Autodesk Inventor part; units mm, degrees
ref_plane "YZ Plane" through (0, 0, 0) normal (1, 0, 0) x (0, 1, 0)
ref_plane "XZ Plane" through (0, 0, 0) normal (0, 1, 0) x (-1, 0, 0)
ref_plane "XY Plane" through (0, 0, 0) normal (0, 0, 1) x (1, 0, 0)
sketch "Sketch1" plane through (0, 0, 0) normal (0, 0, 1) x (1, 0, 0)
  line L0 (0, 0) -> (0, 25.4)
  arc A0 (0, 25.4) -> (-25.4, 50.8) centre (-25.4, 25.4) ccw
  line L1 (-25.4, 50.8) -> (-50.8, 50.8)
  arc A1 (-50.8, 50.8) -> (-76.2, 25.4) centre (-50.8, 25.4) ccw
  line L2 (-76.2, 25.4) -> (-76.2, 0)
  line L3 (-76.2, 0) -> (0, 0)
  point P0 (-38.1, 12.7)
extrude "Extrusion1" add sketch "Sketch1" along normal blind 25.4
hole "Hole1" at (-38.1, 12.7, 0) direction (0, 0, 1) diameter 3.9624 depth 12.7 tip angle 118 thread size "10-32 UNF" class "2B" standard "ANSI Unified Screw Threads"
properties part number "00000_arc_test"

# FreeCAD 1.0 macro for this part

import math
import FreeCAD as App
import Part
import Sketcher
from FreeCAD import Vector
Q = App.Units.Quantity

doc = App.newDocument("Part")
body = doc.addObject("PartDesign::Body", "Body")

# Sketch on XY plane
sketch1 = body.newObject("Sketcher::SketchObject", "Sketch")
sketch1.AttachmentSupport = (doc.getObject("XY_Plane"), [""])
sketch1.MapMode = "FlatFace"
sketch1.addGeometry([
    Part.LineSegment(Vector(-76, 0, 0), Vector(0, 0, 0)),  # 0
    Part.LineSegment(Vector(0, 0, 0), Vector(0, 25, 0)),  # 1
    Part.ArcOfCircle(Part.Circle(Vector(-25, 25, 0), Vector(0, 0, 1), 25), math.radians(0), math.radians(90)),  # 2
    Part.LineSegment(Vector(-25, 51, 0), Vector(-51, 51, 0)),  # 3
    Part.ArcOfCircle(Part.Circle(Vector(-51, 25, 0), Vector(0, 0, 1), 25), math.radians(90), math.radians(180)),  # 4
    Part.LineSegment(Vector(-76, 25, 0), Vector(-76, 0, 0)),  # 5
], False)
sketch1.addConstraint([
    Sketcher.Constraint("Coincident", 0, 2, 1, 1),
    Sketcher.Constraint("Tangent", 1, 2, 2, 1),
    Sketcher.Constraint("Tangent", 2, 2, 3, 1),
    Sketcher.Constraint("Tangent", 3, 2, 4, 1),
    Sketcher.Constraint("Tangent", 4, 2, 5, 1),
    Sketcher.Constraint("Coincident", 5, 2, 0, 1),
    Sketcher.Constraint("Horizontal", 0),
    Sketcher.Constraint("Vertical", 1),
    Sketcher.Constraint("Horizontal", 3),
    Sketcher.Constraint("Vertical", 5),
    Sketcher.Constraint("Coincident", 0, 2, -1, 1),
    Sketcher.Constraint("Equal", 2, 4),
    Sketcher.Constraint("Equal", 3, 1),
    Sketcher.Constraint("Radius", 2, Q("1 in")),
    Sketcher.Constraint("DistanceX", 0, 1, 0, 2, Q("3 in")),
])
pad1 = body.newObject("PartDesign::Pad", "Pad")
pad1.Profile = sketch1
pad1.Length = Q("1 in")

# Sketch on XY plane
sketch2 = body.newObject("Sketcher::SketchObject", "Sketch001")
sketch2.AttachmentSupport = (doc.getObject("XY_Plane"), [""])
sketch2.MapMode = "FlatFace"
sketch2.addGeometry(Part.Circle(Vector(-38.1, 12.7, 0), Vector(0, 0, 1), 2), False)
sketch2.addConstraint([
    Sketcher.Constraint("Diameter", 0, Q("0.156 in")),
    Sketcher.Constraint("DistanceX", 0, 3, -1, 1, Q("1.5 in")),
    Sketcher.Constraint("DistanceY", -1, 1, 0, 3, Q("0.5 in")),
])
doc.recompute()
hole = body.newObject("PartDesign::Hole", "Hole")
hole.Profile = sketch2
hole.ThreadType = "None"
hole.Diameter = Q("0.156 in")
hole.DepthType = "Dimension"
hole.Depth = Q("0.5 in")
hole.DrillPoint = "Angled"
hole.DrillPointAngle = 118
hole.Reversed = True

doc.recompute()
